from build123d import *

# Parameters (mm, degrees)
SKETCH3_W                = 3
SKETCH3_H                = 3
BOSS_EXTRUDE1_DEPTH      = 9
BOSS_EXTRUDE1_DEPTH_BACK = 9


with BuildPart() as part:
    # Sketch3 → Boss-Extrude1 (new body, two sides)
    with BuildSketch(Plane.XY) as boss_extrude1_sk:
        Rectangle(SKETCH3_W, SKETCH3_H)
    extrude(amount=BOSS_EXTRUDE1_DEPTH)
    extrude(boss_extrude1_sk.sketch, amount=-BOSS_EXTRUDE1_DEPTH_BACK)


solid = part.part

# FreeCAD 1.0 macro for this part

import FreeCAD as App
import Part
import Sketcher
Q = App.Units.Quantity


def add_polygon(sketch, points):
    """Adds a closed chain of lines whose ends are joined by coincident constraints."""
    first, n = sketch.GeometryCount, len(points)
    for a, b in zip(points, points[1:] + points[:1]):
        sketch.addGeometry(Part.LineSegment(App.Vector(*a, 0), App.Vector(*b, 0)), False)
    for i in range(n):
        sketch.addConstraint(Sketcher.Constraint("Coincident", first + i, 2, first + (i + 1) % n, 1))

doc = App.newDocument("Part")
body = doc.addObject("PartDesign::Body", "Body")

# Sketch on XY plane
sketch1 = body.newObject("Sketcher::SketchObject", "Sketch")
sketch1.AttachmentSupport = (doc.getObject("XY_Plane"), [""])
sketch1.MapMode = "FlatFace"
add_polygon(sketch1, [(-1.5, 1.5), (-1.5, -1.5), (1.5, -1.5), (1.5, 1.5)])  # lines 0-3
sketch1.addConstraint([
    Sketcher.Constraint("Vertical", 0),
    Sketcher.Constraint("Horizontal", 1),
    Sketcher.Constraint("Vertical", 2),
    Sketcher.Constraint("Horizontal", 3),
    Sketcher.Constraint("Symmetric", 0, 2, 2, 2, -1, 1),
    Sketcher.Constraint("Equal", 3, 0),
    Sketcher.Constraint("DistanceX", 1, 1, 1, 2, Q("3 mm")),
])
pad1 = body.newObject("PartDesign::Pad", "Pad")
pad1.Profile = sketch1
pad1.Type = "TwoLengths"
pad1.Length = 9
pad1.Length2 = 9

doc.recompute()
